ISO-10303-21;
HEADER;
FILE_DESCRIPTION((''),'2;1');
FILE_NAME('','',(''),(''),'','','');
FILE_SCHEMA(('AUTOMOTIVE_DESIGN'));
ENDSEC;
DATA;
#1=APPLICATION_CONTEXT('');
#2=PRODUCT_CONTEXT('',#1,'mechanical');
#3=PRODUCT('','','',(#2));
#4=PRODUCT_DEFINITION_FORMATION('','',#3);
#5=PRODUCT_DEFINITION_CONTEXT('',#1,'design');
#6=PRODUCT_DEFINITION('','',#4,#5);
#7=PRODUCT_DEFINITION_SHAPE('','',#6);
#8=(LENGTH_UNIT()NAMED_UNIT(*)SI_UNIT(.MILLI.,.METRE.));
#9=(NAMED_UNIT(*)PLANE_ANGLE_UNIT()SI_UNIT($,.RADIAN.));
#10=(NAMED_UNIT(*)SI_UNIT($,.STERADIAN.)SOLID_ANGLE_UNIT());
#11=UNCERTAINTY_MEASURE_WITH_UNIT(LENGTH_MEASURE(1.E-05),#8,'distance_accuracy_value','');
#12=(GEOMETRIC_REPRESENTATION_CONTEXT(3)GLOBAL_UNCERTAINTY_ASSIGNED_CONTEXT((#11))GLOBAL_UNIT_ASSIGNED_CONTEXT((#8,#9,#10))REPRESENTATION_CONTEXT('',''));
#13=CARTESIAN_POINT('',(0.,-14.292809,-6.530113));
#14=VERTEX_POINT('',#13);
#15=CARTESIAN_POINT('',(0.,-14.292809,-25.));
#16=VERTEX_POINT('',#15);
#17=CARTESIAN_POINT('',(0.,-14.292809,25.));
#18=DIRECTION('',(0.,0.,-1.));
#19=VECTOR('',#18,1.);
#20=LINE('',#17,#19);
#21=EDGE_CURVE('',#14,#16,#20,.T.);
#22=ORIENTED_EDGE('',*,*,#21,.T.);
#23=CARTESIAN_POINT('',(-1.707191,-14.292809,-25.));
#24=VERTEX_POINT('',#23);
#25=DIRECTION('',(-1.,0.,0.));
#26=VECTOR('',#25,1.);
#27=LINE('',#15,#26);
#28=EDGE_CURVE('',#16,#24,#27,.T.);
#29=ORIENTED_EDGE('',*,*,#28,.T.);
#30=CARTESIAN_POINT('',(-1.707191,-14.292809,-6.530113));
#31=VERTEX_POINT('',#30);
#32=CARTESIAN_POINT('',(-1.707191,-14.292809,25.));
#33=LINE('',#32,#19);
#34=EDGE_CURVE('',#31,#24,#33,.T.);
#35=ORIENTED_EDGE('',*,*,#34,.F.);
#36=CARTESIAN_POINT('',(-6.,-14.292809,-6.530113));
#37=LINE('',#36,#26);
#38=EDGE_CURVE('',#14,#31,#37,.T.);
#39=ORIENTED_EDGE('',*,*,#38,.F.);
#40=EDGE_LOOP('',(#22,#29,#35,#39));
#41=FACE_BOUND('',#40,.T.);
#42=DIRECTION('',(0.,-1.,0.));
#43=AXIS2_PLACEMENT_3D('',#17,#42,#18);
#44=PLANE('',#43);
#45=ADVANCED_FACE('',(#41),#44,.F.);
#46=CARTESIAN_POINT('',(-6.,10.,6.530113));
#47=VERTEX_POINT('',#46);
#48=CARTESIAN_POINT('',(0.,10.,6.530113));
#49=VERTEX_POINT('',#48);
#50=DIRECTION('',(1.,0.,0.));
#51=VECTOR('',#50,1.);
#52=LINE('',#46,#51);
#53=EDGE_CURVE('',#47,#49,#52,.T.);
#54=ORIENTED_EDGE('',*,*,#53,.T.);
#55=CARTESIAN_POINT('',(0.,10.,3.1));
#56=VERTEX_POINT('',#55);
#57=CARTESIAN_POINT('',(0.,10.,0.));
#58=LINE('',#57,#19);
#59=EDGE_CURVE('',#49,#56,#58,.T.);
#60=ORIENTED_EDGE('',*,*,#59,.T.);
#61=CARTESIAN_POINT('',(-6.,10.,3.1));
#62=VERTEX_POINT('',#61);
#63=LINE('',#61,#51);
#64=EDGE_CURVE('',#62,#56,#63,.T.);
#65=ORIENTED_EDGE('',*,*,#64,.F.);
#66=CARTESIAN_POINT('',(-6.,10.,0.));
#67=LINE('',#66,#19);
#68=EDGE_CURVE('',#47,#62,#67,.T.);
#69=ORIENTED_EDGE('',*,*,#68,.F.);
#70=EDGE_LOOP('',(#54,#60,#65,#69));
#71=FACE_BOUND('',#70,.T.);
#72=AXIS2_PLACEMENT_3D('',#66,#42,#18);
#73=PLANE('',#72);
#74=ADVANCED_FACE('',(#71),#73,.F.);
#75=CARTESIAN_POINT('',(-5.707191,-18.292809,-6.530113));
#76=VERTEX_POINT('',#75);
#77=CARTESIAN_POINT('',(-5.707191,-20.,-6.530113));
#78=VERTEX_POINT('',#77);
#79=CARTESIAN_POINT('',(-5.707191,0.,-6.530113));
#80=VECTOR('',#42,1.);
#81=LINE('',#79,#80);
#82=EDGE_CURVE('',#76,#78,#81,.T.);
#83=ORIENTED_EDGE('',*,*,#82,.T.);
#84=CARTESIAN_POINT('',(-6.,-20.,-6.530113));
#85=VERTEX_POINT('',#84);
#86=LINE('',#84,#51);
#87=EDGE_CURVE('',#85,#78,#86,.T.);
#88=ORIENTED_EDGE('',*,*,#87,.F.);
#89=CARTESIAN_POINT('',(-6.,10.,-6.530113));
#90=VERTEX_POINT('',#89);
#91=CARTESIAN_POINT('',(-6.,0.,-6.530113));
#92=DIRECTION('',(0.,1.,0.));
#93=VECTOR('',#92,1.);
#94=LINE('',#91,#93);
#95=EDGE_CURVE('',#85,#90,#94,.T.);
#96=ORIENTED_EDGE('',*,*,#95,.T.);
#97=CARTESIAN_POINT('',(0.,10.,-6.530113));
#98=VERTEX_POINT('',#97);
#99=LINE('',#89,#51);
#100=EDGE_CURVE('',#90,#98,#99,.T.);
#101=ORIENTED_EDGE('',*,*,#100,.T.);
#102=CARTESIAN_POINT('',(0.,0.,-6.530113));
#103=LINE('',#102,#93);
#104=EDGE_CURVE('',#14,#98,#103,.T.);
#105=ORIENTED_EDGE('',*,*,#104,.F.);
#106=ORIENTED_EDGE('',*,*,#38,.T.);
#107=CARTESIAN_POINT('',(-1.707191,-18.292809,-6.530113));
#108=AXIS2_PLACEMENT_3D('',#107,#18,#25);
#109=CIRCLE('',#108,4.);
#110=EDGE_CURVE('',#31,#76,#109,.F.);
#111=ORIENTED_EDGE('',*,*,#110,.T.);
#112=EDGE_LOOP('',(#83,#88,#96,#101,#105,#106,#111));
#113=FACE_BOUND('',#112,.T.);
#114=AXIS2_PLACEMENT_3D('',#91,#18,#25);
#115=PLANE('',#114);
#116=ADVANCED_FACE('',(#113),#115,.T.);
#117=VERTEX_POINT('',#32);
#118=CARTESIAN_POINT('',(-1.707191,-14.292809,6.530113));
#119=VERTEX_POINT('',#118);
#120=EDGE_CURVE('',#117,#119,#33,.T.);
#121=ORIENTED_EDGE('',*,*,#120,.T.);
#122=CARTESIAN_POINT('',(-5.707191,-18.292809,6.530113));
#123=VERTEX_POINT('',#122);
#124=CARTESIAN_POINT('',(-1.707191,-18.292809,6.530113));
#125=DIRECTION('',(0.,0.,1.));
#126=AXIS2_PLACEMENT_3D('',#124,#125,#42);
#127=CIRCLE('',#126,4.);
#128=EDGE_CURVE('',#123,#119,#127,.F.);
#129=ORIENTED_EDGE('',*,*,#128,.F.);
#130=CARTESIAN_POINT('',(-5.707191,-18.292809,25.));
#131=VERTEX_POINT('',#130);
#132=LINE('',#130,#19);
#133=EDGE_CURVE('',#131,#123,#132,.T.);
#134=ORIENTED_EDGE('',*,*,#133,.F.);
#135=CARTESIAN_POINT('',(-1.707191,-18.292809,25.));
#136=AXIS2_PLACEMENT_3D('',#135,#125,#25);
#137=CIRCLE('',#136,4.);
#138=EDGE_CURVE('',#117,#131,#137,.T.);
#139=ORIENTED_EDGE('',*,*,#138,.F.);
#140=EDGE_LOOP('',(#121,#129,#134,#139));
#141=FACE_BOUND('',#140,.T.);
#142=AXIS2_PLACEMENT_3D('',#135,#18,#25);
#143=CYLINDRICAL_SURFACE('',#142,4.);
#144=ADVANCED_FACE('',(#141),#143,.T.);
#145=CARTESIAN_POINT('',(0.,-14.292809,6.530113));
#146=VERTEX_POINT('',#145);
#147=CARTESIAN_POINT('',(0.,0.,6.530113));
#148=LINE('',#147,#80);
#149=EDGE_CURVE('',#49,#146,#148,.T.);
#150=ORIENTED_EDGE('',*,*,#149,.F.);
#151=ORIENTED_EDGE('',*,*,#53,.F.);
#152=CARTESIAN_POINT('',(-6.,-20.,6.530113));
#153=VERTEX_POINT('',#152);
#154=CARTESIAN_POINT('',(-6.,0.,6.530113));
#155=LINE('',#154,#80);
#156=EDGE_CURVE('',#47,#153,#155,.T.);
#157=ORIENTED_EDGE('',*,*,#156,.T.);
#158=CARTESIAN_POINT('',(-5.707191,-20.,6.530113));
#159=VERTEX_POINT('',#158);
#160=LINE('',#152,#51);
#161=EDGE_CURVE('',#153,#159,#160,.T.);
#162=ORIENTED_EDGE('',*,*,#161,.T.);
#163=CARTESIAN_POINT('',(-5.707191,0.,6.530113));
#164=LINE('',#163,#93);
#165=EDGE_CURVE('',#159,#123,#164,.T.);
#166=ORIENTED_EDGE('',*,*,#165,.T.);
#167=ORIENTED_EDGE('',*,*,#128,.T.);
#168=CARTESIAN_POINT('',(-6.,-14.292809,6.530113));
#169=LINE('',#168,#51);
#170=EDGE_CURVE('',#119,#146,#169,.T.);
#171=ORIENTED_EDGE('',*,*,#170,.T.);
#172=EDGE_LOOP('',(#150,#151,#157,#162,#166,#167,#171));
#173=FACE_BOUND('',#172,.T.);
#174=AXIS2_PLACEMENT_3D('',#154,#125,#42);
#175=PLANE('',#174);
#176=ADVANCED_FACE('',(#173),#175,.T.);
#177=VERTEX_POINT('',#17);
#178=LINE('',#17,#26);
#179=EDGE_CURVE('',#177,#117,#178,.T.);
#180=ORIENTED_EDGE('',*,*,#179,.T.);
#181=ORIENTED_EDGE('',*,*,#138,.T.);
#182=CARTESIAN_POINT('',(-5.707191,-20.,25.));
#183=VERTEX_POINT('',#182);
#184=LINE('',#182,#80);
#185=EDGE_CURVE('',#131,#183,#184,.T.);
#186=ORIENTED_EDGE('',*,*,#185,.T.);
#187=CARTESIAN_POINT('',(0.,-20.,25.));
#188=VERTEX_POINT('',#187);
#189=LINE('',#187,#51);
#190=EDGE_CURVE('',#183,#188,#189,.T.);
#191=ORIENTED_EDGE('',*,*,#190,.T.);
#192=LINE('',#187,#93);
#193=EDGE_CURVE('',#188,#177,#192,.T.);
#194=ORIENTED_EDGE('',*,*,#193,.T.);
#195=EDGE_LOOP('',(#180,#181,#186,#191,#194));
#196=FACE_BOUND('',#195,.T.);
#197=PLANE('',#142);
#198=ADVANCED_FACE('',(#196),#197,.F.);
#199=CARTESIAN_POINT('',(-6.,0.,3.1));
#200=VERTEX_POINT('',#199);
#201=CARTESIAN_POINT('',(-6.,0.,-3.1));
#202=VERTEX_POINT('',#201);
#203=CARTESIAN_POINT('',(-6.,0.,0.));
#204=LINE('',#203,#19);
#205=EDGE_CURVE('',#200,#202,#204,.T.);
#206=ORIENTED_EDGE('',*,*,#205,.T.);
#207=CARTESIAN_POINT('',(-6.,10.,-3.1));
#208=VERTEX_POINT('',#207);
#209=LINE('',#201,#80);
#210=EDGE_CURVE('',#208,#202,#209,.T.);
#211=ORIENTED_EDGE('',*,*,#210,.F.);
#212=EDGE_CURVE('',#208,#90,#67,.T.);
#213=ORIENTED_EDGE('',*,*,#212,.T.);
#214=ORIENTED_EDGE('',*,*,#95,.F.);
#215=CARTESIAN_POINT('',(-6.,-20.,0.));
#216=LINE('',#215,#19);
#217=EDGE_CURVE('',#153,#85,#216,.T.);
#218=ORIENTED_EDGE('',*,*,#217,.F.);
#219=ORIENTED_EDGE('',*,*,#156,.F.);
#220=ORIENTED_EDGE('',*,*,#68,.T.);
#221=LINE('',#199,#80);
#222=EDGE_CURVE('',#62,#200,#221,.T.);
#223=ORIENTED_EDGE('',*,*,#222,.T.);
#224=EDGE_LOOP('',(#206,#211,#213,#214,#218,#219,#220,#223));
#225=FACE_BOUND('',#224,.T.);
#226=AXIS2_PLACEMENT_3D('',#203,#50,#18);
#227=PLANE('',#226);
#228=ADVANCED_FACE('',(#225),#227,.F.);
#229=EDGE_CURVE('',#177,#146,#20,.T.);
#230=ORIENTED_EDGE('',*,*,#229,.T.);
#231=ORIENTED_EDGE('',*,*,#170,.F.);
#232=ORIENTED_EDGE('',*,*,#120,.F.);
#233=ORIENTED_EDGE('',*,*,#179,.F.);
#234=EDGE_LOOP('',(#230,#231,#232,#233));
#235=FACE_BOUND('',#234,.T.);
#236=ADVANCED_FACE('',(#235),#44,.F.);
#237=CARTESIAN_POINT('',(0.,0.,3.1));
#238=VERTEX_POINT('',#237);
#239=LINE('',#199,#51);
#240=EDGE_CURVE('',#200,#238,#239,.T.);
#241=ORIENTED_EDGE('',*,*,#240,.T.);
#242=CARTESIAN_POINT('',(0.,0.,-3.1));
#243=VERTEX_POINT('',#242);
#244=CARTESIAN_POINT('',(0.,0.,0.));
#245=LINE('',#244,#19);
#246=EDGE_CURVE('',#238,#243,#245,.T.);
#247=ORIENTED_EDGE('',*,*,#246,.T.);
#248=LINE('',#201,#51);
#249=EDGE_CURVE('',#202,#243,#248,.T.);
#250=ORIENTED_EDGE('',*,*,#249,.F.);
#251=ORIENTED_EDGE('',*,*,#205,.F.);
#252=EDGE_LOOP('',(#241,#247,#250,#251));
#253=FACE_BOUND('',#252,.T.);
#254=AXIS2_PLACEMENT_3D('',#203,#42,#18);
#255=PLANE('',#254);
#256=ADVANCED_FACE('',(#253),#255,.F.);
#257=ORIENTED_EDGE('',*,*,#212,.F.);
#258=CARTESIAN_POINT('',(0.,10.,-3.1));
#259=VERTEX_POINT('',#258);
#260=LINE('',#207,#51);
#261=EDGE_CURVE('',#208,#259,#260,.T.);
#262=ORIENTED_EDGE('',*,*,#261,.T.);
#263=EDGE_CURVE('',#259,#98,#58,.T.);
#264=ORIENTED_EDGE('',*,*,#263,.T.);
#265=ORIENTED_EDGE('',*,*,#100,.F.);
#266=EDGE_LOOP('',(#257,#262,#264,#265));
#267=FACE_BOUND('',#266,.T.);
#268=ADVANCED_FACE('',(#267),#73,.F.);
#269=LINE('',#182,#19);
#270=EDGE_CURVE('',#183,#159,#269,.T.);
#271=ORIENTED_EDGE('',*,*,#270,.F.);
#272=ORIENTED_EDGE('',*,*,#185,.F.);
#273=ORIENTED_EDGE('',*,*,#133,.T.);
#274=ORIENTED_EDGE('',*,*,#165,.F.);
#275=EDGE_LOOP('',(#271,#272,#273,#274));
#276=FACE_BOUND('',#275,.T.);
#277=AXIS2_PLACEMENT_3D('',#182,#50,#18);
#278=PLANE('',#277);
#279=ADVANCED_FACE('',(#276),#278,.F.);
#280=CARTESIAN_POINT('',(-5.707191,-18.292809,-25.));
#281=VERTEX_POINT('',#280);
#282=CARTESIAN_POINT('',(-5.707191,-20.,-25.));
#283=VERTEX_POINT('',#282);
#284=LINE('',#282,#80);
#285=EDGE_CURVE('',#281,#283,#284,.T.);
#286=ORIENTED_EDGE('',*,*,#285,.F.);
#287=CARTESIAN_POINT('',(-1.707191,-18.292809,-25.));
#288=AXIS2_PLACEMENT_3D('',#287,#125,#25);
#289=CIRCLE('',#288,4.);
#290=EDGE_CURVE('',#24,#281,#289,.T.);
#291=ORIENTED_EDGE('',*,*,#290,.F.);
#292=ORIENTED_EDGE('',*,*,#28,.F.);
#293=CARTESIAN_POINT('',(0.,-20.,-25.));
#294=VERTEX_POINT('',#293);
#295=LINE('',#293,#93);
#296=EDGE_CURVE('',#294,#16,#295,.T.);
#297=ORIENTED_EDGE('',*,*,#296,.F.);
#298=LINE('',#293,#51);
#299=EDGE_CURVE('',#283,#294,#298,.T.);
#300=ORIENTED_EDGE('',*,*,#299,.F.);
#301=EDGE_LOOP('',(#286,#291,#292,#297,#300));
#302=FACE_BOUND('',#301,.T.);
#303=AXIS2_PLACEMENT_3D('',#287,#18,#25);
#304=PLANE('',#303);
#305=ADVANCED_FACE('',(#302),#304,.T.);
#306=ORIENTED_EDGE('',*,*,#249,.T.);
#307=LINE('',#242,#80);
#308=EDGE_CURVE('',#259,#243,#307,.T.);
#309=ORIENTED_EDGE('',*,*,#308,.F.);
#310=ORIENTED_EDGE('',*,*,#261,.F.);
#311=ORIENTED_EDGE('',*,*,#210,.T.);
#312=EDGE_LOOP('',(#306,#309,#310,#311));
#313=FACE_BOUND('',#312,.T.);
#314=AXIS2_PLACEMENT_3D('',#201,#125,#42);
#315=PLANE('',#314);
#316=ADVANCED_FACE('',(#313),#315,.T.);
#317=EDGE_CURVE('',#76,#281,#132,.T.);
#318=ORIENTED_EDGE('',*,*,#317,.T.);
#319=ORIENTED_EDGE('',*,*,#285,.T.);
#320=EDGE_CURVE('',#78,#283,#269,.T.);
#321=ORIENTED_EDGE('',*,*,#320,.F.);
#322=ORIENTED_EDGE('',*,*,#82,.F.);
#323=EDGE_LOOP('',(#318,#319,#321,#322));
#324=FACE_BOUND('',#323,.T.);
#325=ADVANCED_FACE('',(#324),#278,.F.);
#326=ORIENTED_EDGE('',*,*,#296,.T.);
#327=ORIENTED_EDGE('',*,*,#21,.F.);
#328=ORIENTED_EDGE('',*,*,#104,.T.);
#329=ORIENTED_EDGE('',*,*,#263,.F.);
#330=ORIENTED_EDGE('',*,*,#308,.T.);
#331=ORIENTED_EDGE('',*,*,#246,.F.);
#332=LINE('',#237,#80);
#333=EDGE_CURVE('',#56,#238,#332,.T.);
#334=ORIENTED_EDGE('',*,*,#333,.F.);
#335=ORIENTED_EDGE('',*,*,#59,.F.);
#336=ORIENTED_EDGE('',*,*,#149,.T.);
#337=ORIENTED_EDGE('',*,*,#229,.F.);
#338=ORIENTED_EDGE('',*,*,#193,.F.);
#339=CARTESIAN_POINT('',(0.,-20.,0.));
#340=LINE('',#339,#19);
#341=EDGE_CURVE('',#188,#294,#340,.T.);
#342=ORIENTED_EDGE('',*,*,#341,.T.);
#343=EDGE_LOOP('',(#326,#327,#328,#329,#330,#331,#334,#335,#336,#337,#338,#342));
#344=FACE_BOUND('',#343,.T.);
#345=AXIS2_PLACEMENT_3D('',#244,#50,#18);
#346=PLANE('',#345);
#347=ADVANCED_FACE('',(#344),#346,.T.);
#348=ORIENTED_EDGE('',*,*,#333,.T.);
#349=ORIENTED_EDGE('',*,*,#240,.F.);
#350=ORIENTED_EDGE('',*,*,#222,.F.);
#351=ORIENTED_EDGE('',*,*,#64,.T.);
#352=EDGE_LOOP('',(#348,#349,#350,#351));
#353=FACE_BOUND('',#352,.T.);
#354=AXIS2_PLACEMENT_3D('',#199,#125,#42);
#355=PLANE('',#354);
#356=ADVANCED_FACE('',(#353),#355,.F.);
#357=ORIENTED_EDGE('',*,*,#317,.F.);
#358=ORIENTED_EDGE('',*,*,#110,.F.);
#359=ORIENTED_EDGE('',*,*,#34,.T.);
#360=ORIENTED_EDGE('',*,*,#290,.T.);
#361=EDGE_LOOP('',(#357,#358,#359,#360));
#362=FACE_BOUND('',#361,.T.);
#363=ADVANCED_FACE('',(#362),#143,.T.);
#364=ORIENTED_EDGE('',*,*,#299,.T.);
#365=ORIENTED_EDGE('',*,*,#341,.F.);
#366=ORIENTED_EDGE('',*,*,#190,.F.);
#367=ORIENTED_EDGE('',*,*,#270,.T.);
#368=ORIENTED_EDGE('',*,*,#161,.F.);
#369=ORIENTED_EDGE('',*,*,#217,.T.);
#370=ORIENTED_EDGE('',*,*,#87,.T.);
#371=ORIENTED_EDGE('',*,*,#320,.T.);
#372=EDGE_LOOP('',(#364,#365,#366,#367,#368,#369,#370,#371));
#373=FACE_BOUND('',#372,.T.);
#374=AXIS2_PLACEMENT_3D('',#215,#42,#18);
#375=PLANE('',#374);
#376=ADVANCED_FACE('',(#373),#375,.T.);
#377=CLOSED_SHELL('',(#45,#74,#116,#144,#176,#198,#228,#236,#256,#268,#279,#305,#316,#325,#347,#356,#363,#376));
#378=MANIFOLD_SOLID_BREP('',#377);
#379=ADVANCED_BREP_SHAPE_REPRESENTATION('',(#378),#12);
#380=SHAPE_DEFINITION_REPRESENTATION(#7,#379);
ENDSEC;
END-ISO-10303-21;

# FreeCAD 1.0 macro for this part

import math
import FreeCAD as App
import Part
import Sketcher

V = App.Vector


def add_polygon(sketch, points):
    """Adds a closed chain of lines whose ends are joined by coincident constraints."""
    first, n = sketch.GeometryCount, len(points)
    for a, b in zip(points, points[1:] + points[:1]):
        sketch.addGeometry(Part.LineSegment(App.Vector(*a, 0), App.Vector(*b, 0)), False)
    for i in range(n):
        sketch.addConstraint(Sketcher.Constraint("Coincident", first + i, 2, first + (i + 1) % n, 1))

doc = App.newDocument("Part")
body = doc.addObject("PartDesign::Body", "Body")

# Sketch on YZ plane
sketch1 = doc.addObject("Sketcher::SketchObject", "Sketch")
body.addObject(sketch1)
sketch1.AttachmentSupport = (doc.YZ_Plane, [""])
sketch1.MapMode = "FlatFace"
add_polygon(sketch1, [(0, 3.1), (10, 3.1), (10, 6.530113), (-20, 6.530113), (-20, -6.530113), (10, -6.530113), (10, -3.1), (0, -3.1)])  # lines 0-7
sketch1.addConstraint(Sketcher.Constraint("Horizontal", 0))
sketch1.addConstraint(Sketcher.Constraint("Vertical", 1))
sketch1.addConstraint(Sketcher.Constraint("Horizontal", 2))
sketch1.addConstraint(Sketcher.Constraint("Vertical", 3))
sketch1.addConstraint(Sketcher.Constraint("Horizontal", 4))
sketch1.addConstraint(Sketcher.Constraint("Vertical", 5))
sketch1.addConstraint(Sketcher.Constraint("Horizontal", 6))
sketch1.addConstraint(Sketcher.Constraint("Vertical", 7))
sketch1.addConstraint(Sketcher.Constraint("Symmetric", 6, 2, 7, 2, -1, 1))
sketch1.addConstraint(Sketcher.Constraint("Symmetric", 1, 2, 4, 2, -1))
sketch1.addConstraint(Sketcher.Constraint("DistanceX", 0, 1, 0, 2, 10.0))
sketch1.addConstraint(Sketcher.Constraint("DistanceX", 2, 2, 2, 1, 30.0))
sketch1.addConstraint(Sketcher.Constraint("DistanceY", 7, 1, 7, 2, 6.2))
sketch1.addConstraint(Sketcher.Constraint("DistanceY", 1, 1, 1, 2, 3.430113))
pad1 = doc.addObject("PartDesign::Pad", "Pad")
body.addObject(pad1)
pad1.Profile = sketch1
pad1.Length = 6
pad1.Reversed = True

# Sketch on XY plane
sketch2 = doc.addObject("Sketcher::SketchObject", "Sketch001")
body.addObject(sketch2)
sketch2.AttachmentSupport = (doc.XY_Plane, [""])
sketch2.MapMode = "FlatFace"
sketch2.AttachmentOffset = App.Placement(V(0, 0, 6.530113), App.Rotation())
sketch2.addGeometry(Part.LineSegment(V(-5.707191, -20, 0), V(0, -20, 0)), False)
sketch2.addGeometry(Part.LineSegment(V(0, -20, 0), V(0, -14.292809, 0)), False)
sketch2.addGeometry(Part.LineSegment(V(0, -14.292809, 0), V(-1.707191, -14.292809, 0)), False)
sketch2.addGeometry(Part.ArcOfCircle(Part.Circle(V(-1.707191, -18.292809, 0), V(0, 0, 1), 4), math.radians(90), math.radians(180)), False)
sketch2.addGeometry(Part.LineSegment(V(-5.707191, -18.292809, 0), V(-5.707191, -20, 0)), False)
sketch2.addConstraint(Sketcher.Constraint("Coincident", 0, 2, 1, 1))
sketch2.addConstraint(Sketcher.Constraint("Coincident", 1, 2, 2, 1))
sketch2.addConstraint(Sketcher.Constraint("Tangent", 2, 2, 3, 1))
sketch2.addConstraint(Sketcher.Constraint("Tangent", 3, 2, 4, 1))
sketch2.addConstraint(Sketcher.Constraint("Coincident", 4, 2, 0, 1))
sketch2.addConstraint(Sketcher.Constraint("Horizontal", 0))
sketch2.addConstraint(Sketcher.Constraint("Vertical", 1))
sketch2.addConstraint(Sketcher.Constraint("Horizontal", 2))
sketch2.addConstraint(Sketcher.Constraint("Vertical", 4))
sketch2.addConstraint(Sketcher.Constraint("PointOnObject", 0, 2, -2))
sketch2.addConstraint(Sketcher.Constraint("Equal", 0, 1))
sketch2.addConstraint(Sketcher.Constraint("Radius", 3, 4.0))
sketch2.addConstraint(Sketcher.Constraint("DistanceY", 0, 2, -1, 1, 20.0))
sketch2.addConstraint(Sketcher.Constraint("DistanceX", 0, 1, 0, 2, 5.707191))
pad2 = doc.addObject("PartDesign::Pad", "Pad001")
body.addObject(pad2)
pad2.Profile = sketch2
pad2.Type = "TwoLengths"
pad2.Length = 18.469887
pad2.Length2 = 31.530113

doc.recompute()
